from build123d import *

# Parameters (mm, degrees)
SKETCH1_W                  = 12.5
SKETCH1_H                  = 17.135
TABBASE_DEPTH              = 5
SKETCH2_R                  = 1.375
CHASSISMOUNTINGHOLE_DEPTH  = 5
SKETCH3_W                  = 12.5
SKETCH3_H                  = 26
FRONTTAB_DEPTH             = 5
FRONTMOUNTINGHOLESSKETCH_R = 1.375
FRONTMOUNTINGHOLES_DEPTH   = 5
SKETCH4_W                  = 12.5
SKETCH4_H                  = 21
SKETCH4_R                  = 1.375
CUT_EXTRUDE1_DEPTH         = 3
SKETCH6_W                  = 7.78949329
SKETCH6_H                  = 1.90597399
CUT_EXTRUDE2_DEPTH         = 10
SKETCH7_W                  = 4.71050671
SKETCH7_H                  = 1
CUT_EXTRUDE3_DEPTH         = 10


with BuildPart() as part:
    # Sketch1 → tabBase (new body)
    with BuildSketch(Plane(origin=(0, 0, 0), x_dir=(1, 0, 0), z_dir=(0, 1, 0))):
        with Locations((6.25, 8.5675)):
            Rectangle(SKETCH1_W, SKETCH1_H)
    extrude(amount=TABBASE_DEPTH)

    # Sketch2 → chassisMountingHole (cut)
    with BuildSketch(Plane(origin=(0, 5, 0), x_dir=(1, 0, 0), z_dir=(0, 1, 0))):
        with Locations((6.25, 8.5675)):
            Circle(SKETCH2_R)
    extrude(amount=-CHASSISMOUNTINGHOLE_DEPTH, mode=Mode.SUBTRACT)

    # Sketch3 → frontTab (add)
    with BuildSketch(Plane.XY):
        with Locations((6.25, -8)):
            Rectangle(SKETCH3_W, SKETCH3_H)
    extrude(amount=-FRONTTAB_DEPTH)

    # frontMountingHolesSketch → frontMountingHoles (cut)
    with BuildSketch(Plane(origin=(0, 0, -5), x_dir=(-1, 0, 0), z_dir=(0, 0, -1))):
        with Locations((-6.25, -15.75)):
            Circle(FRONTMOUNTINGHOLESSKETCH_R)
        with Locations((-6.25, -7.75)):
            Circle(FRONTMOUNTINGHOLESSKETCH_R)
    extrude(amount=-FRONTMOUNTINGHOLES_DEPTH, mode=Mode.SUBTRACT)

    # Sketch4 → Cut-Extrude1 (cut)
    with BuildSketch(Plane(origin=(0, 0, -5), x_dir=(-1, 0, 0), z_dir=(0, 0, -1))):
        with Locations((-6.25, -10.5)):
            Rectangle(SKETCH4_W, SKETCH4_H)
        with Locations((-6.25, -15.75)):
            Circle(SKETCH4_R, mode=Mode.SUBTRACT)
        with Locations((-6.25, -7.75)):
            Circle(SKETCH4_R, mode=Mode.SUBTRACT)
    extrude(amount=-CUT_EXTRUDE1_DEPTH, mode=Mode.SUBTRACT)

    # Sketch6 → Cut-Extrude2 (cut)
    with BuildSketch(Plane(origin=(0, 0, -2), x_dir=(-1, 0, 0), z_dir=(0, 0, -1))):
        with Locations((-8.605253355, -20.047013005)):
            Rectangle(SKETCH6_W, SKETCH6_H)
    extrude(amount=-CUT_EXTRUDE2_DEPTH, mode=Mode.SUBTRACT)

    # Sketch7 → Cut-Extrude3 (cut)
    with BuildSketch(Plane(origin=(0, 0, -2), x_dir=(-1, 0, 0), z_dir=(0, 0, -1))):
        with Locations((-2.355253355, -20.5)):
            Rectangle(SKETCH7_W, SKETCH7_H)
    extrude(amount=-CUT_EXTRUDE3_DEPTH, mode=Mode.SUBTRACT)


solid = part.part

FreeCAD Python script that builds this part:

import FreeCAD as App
import Part
import Sketcher

V = App.Vector
Q = App.Units.Quantity

doc = App.newDocument("Part")
body = doc.addObject("PartDesign::Body", "Body")

sketch1 = body.newObject("Sketcher::SketchObject", "Sketch")
sketch1.AttachmentSupport = (doc.getObject("XZ_Plane"), [""])
sketch1.MapMode = "FlatFace"
sketch1.addGeometry(Part.LineSegment(V(0, -17, 0), V(0, 0, 0)), False)
sketch1.addGeometry(Part.LineSegment(V(0, 0, 0), V(12, 0, 0)), False)
sketch1.addGeometry(Part.LineSegment(V(12, 0, 0), V(12, -17, 0)), False)
sketch1.addGeometry(Part.LineSegment(V(12, -17, 0), V(0, -17, 0)), False)
sketch1.addConstraint(Sketcher.Constraint("Coincident", 0, 2, 1, 1))
sketch1.addConstraint(Sketcher.Constraint("Coincident", 1, 2, 2, 1))
sketch1.addConstraint(Sketcher.Constraint("Coincident", 2, 2, 3, 1))
sketch1.addConstraint(Sketcher.Constraint("Coincident", 3, 2, 0, 1))
sketch1.addConstraint(Sketcher.Constraint("Vertical", 0))
sketch1.addConstraint(Sketcher.Constraint("Horizontal", 1))
sketch1.addConstraint(Sketcher.Constraint("Vertical", 2))
sketch1.addConstraint(Sketcher.Constraint("Horizontal", 3))
sketch1.addConstraint(Sketcher.Constraint("Coincident", 0, 2, -1, 1))
sketch1.addConstraint(Sketcher.Constraint("DistanceX", 1, 1, 1, 2, Q("12.5 mm")))
sketch1.addConstraint(Sketcher.Constraint("DistanceY", 0, 1, 0, 2, Q("17.135 mm")))
pad1 = body.newObject("PartDesign::Pad", "Pad")
pad1.Profile = sketch1
pad1.Length = 5
pad1.Reversed = True

sketch2 = body.newObject("Sketcher::SketchObject", "Sketch001")
sketch2.AttachmentSupport = (doc.getObject("XZ_Plane"), [""])
sketch2.MapMode = "FlatFace"
sketch2.AttachmentOffset = App.Placement(V(0, 0, -5), App.Rotation())
sketch2.addGeometry(Part.Circle(V(6.2, -8.6, 0), V(0, 0, 1), 1.4), False)
sketch2.addConstraint(Sketcher.Constraint("Diameter", 0, Q("2.75 mm")))
sketch2.addConstraint(Sketcher.Constraint("DistanceX", -1, 1, 0, 3, Q("6.25 mm")))
sketch2.addConstraint(Sketcher.Constraint("DistanceY", 0, 3, -1, 1, Q("8.5675 mm")))
pocket1 = body.newObject("PartDesign::Pocket", "Pocket")
pocket1.Profile = sketch2
pocket1.Length = 5
pocket1.Reversed = True

sketch3 = body.newObject("Sketcher::SketchObject", "Sketch002")
sketch3.AttachmentSupport = (doc.getObject("XY_Plane"), [""])
sketch3.MapMode = "FlatFace"
sketch3.addGeometry(Part.LineSegment(V(0, 5, 0), V(0, -21, 0)), False)
sketch3.addGeometry(Part.LineSegment(V(0, -21, 0), V(12, -21, 0)), False)
sketch3.addGeometry(Part.LineSegment(V(12, -21, 0), V(12, 5, 0)), False)
sketch3.addGeometry(Part.LineSegment(V(12, 5, 0), V(0, 5, 0)), False)
sketch3.addConstraint(Sketcher.Constraint("Coincident", 0, 2, 1, 1))
sketch3.addConstraint(Sketcher.Constraint("Coincident", 1, 2, 2, 1))
sketch3.addConstraint(Sketcher.Constraint("Coincident", 2, 2, 3, 1))
sketch3.addConstraint(Sketcher.Constraint("Coincident", 3, 2, 0, 1))
sketch3.addConstraint(Sketcher.Constraint("Vertical", 0))
sketch3.addConstraint(Sketcher.Constraint("Horizontal", 1))
sketch3.addConstraint(Sketcher.Constraint("Vertical", 2))
sketch3.addConstraint(Sketcher.Constraint("Horizontal", 3))
sketch3.addConstraint(Sketcher.Constraint("PointOnObject", 0, 2, -2))
sketch3.addConstraint(Sketcher.Constraint("DistanceY", 0, 2, 0, 1, Q("26 mm")))
sketch3.addConstraint(Sketcher.Constraint("DistanceX", 1, 1, 1, 2, Q("12.5 mm")))
sketch3.addConstraint(Sketcher.Constraint("DistanceY", 0, 2, -1, 1, Q("21 mm")))
pad2 = body.newObject("PartDesign::Pad", "Pad001")
pad2.Profile = sketch3
pad2.Length = 5
pad2.Reversed = True

sketch4 = body.newObject("Sketcher::SketchObject", "Sketch003")
sketch4.AttachmentSupport = (doc.getObject("XY_Plane"), [""])
sketch4.MapMode = "FlatFace"
sketch4.AttachmentOffset = App.Placement(V(0, 0, -5), App.Rotation())
sketch4.addGeometry(Part.Circle(V(6.2, -15.8, 0), V(0, 0, 1), 1.4), False)
sketch4.addGeometry(Part.Circle(V(6.2, -7.8, 0), V(0, 0, 1), 1.4), False)
sketch4.addConstraint(Sketcher.Constraint("Equal", 0, 1))
sketch4.addConstraint(Sketcher.Constraint("Vertical", 0, 3, 1, 3))
sketch4.addConstraint(Sketcher.Constraint("Diameter", 0, Q("2.75 mm")))
sketch4.addConstraint(Sketcher.Constraint("DistanceY", 0, 3, 1, 3, Q("8 mm")))
sketch4.addConstraint(Sketcher.Constraint("DistanceX", -1, 1, 0, 3, Q("6.25 mm")))
sketch4.addConstraint(Sketcher.Constraint("DistanceY", 0, 3, -1, 1, Q("15.75 mm")))
pocket2 = body.newObject("PartDesign::Pocket", "Pocket001")
pocket2.Profile = sketch4
pocket2.Length = 5
pocket2.Reversed = True

sketch5 = body.newObject("Sketcher::SketchObject", "Sketch004")
sketch5.AttachmentSupport = (doc.getObject("XY_Plane"), [""])
sketch5.MapMode = "FlatFace"
sketch5.AttachmentOffset = App.Placement(V(0, 0, -5), App.Rotation())
sketch5.addGeometry(Part.LineSegment(V(12.5, 0, 0), V(12.5, -21, 0)), False)
sketch5.addGeometry(Part.LineSegment(V(12.5, -21, 0), V(0, -21, 0)), False)
sketch5.addGeometry(Part.LineSegment(V(0, -21, 0), V(0, 0, 0)), False)
sketch5.addGeometry(Part.LineSegment(V(0, 0, 0), V(12.5, 0, 0)), False)
sketch5.addGeometry(Part.Circle(V(6.2, -15.8, 0), V(0, 0, 1), 1.4), False)
sketch5.addGeometry(Part.Circle(V(6.2, -7.8, 0), V(0, 0, 1), 1.4), False)
sketch5.addConstraint(Sketcher.Constraint("Coincident", 0, 2, 1, 1))
sketch5.addConstraint(Sketcher.Constraint("Coincident", 1, 2, 2, 1))
sketch5.addConstraint(Sketcher.Constraint("Coincident", 2, 2, 3, 1))
sketch5.addConstraint(Sketcher.Constraint("Coincident", 3, 2, 0, 1))
sketch5.addConstraint(Sketcher.Constraint("Vertical", 0))
sketch5.addConstraint(Sketcher.Constraint("Horizontal", 1))
sketch5.addConstraint(Sketcher.Constraint("Vertical", 2))
sketch5.addConstraint(Sketcher.Constraint("Horizontal", 3))
sketch5.addConstraint(Sketcher.Constraint("Coincident", 2, 2, -1, 1))
sketch5.addConstraint(Sketcher.Constraint("Equal", 4, 5))
sketch5.addConstraint(Sketcher.Constraint("Vertical", 4, 3, 5, 3))
sketch5.addConstraint(Sketcher.Constraint("Diameter", 4, Q("2.75 mm")))
sketch5.addConstraint(Sketcher.Constraint("DistanceY", 0, 2, 0, 1, Q("21 mm")))
sketch5.addConstraint(Sketcher.Constraint("DistanceX", 1, 2, 1, 1, Q("12.5 mm")))
sketch5.addConstraint(Sketcher.Constraint("DistanceY", 4, 3, 5, 3, Q("8 mm")))
sketch5.addConstraint(Sketcher.Constraint("DistanceX", -1, 1, 4, 3, Q("6.25 mm")))
sketch5.addConstraint(Sketcher.Constraint("DistanceY", 4, 3, -1, 1, Q("15.75 mm")))
pocket3 = body.newObject("PartDesign::Pocket", "Pocket002")
pocket3.Profile = sketch5
pocket3.Length = 3
pocket3.Reversed = True

sketch6 = body.newObject("Sketcher::SketchObject", "Sketch005")
sketch6.AttachmentSupport = (doc.getObject("XY_Plane"), [""])
sketch6.MapMode = "FlatFace"
sketch6.AttachmentOffset = App.Placement(V(0, 0, -2), App.Rotation())
sketch6.addGeometry(Part.LineSegment(V(12.5, -19.1, 0), V(12.5, -21, 0)), False)
sketch6.addGeometry(Part.LineSegment(V(12.5, -21, 0), V(4.7, -21, 0)), False)
sketch6.addGeometry(Part.LineSegment(V(4.7, -21, 0), V(4.7, -19.1, 0)), False)
sketch6.addGeometry(Part.LineSegment(V(4.7, -19.1, 0), V(12.5, -19.1, 0)), False)
sketch6.addConstraint(Sketcher.Constraint("Coincident", 0, 2, 1, 1))
sketch6.addConstraint(Sketcher.Constraint("Coincident", 1, 2, 2, 1))
sketch6.addConstraint(Sketcher.Constraint("Coincident", 2, 2, 3, 1))
sketch6.addConstraint(Sketcher.Constraint("Coincident", 3, 2, 0, 1))
sketch6.addConstraint(Sketcher.Constraint("Vertical", 0))
sketch6.addConstraint(Sketcher.Constraint("Horizontal", 1))
sketch6.addConstraint(Sketcher.Constraint("Vertical", 2))
sketch6.addConstraint(Sketcher.Constraint("Horizontal", 3))
sketch6.addConstraint(Sketcher.Constraint("DistanceY", 0, 2, -1, 1, Q("21 mm")))
sketch6.addConstraint(Sketcher.Constraint("DistanceX", -1, 1, 0, 2, Q("12.5 mm")))
sketch6.addConstraint(Sketcher.Constraint("DistanceX", 1, 2, 1, 1, Q("7.789493 mm")))
sketch6.addConstraint(Sketcher.Constraint("DistanceY", 0, 2, 0, 1, Q("1.905974 mm")))
pocket4 = body.newObject("PartDesign::Pocket", "Pocket003")
pocket4.Profile = sketch6
pocket4.Length = 10
pocket4.Reversed = True

sketch7 = body.newObject("Sketcher::SketchObject", "Sketch006")
sketch7.AttachmentSupport = (doc.getObject("XY_Plane"), [""])
sketch7.MapMode = "FlatFace"
sketch7.AttachmentOffset = App.Placement(V(0, 0, -2), App.Rotation())
sketch7.addGeometry(Part.LineSegment(V(4.7, -20, 0), V(4.7, -21, 0)), False)
sketch7.addGeometry(Part.LineSegment(V(4.7, -21, 0), V(0, -21, 0)), False)
sketch7.addGeometry(Part.LineSegment(V(0, -21, 0), V(0, -20, 0)), False)
sketch7.addGeometry(Part.LineSegment(V(0, -20, 0), V(4.7, -20, 0)), False)
sketch7.addConstraint(Sketcher.Constraint("Coincident", 0, 2, 1, 1))
sketch7.addConstraint(Sketcher.Constraint("Coincident", 1, 2, 2, 1))
sketch7.addConstraint(Sketcher.Constraint("Coincident", 2, 2, 3, 1))
sketch7.addConstraint(Sketcher.Constraint("Coincident", 3, 2, 0, 1))
sketch7.addConstraint(Sketcher.Constraint("Vertical", 0))
sketch7.addConstraint(Sketcher.Constraint("Horizontal", 1))
sketch7.addConstraint(Sketcher.Constraint("Vertical", 2))
sketch7.addConstraint(Sketcher.Constraint("Horizontal", 3))
sketch7.addConstraint(Sketcher.Constraint("PointOnObject", 1, 2, -2))
sketch7.addConstraint(Sketcher.Constraint("DistanceY", 0, 2, 0, 1, Q("1 mm")))
sketch7.addConstraint(Sketcher.Constraint("DistanceY", 0, 2, -1, 1, Q("21 mm")))
sketch7.addConstraint(Sketcher.Constraint("DistanceX", 1, 2, 1, 1, Q("4.710507 mm")))
pocket5 = body.newObject("PartDesign::Pocket", "Pocket004")
pocket5.Profile = sketch7
pocket5.Length = 10
pocket5.Reversed = True

doc.recompute()
